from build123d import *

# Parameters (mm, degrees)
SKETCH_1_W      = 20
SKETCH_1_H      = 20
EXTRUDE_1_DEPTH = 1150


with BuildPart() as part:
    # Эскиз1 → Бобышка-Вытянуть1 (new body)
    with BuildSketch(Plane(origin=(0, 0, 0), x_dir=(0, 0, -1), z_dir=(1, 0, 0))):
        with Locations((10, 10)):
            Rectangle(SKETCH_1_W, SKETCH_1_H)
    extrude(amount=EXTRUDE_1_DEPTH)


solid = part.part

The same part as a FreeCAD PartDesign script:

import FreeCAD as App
import Part
import Sketcher

doc = App.newDocument("Part")
body = doc.addObject("PartDesign::Body", "Body")

# Sketch on YZ plane
sketch1 = body.newObject("Sketcher::SketchObject", "Sketch")
sketch1.AttachmentSupport = (doc.getObject("YZ_Plane"), [""])
sketch1.MapMode = "FlatFace"
sketch1.addGeometry([
    Part.LineSegment(App.Vector(20, 0, 0), App.Vector(0, 0, 0)),
    Part.LineSegment(App.Vector(0, 0, 0), App.Vector(0, -20, 0)),
    Part.LineSegment(App.Vector(0, -20, 0), App.Vector(20, -20, 0)),
    Part.LineSegment(App.Vector(20, -20, 0), App.Vector(20, 0, 0)),
], False)
sketch1.addConstraint([
    Sketcher.Constraint("Coincident", 0, 2, 1, 1),
    Sketcher.Constraint("Coincident", 1, 2, 2, 1),
    Sketcher.Constraint("Coincident", 2, 2, 3, 1),
    Sketcher.Constraint("Coincident", 3, 2, 0, 1),
    Sketcher.Constraint("Horizontal", 0),
    Sketcher.Constraint("Vertical", 1),
    Sketcher.Constraint("Horizontal", 2),
    Sketcher.Constraint("Vertical", 3),
    Sketcher.Constraint("Coincident", 0, 2, -1, 1),
    Sketcher.Constraint("Equal", 2, 1),
    Sketcher.Constraint("DistanceX", 0, 2, 0, 1, 20.0),
])
pad1 = body.newObject("PartDesign::Pad", "Pad")
pad1.Profile = sketch1
pad1.Length = 1150

doc.recompute()
